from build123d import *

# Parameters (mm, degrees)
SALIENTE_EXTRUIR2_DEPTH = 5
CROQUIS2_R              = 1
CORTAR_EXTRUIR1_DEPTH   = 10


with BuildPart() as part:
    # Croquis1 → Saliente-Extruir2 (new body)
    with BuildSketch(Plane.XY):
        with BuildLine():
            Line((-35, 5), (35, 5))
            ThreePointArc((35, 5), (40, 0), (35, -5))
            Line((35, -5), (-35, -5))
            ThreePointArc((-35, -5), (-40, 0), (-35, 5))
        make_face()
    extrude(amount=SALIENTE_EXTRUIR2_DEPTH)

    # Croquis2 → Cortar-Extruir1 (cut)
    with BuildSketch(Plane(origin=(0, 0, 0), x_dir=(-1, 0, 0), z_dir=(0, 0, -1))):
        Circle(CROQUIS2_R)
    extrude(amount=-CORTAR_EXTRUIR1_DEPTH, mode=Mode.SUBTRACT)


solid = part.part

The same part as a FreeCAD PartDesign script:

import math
import FreeCAD as App
import Part
import Sketcher

V = App.Vector
Q = App.Units.Quantity

doc = App.newDocument("Part")
body = doc.addObject("PartDesign::Body", "Body")

# Sketch on XY plane
sketch1 = body.newObject("Sketcher::SketchObject", "Sketch")
sketch1.AttachmentSupport = (doc.getObject("XY_Plane"), [""])
sketch1.MapMode = "FlatFace"
sketch1.addGeometry([
    Part.LineSegment(V(35, 5, 0), V(-35, 5, 0)),
    Part.ArcOfCircle(Part.Circle(V(-35, 0, 0), V(0, 0, 1), 5), math.radians(90), math.radians(270)),
    Part.LineSegment(V(-35, -5, 0), V(35, -5, 0)),
    Part.ArcOfCircle(Part.Circle(V(35, 0, 0), V(0, 0, 1), 5), math.radians(-90), math.radians(90)),
], False)
sketch1.addConstraint([
    Sketcher.Constraint("Tangent", 0, 2, 1, 1),
    Sketcher.Constraint("Tangent", 1, 2, 2, 1),
    Sketcher.Constraint("Tangent", 2, 2, 3, 1),
    Sketcher.Constraint("Tangent", 3, 2, 0, 1),
    Sketcher.Constraint("Horizontal", 0),
    Sketcher.Constraint("Horizontal", 2),
    Sketcher.Constraint("Symmetric", 1, 3, 3, 3, -1, 1),
    Sketcher.Constraint("Radius", 1, Q("5 mm")),
    Sketcher.Constraint("DistanceX", 0, 2, 0, 1, Q("70 mm")),
])
pad1 = body.newObject("PartDesign::Pad", "Pad")
pad1.Profile = sketch1
pad1.Length = 5

# Sketch on XY plane
sketch2 = body.newObject("Sketcher::SketchObject", "Sketch001")
sketch2.AttachmentSupport = (doc.getObject("XY_Plane"), [""])
sketch2.MapMode = "FlatFace"
sketch2.addGeometry(Part.Circle(V(0, 0, 0), V(0, 0, 1), 1), False)
sketch2.addConstraint([
    Sketcher.Constraint("Coincident", 0, 3, -1, 1),
    Sketcher.Constraint("Diameter", 0, Q("2 mm")),
])
pocket1 = body.newObject("PartDesign::Pocket", "Pocket")
pocket1.Profile = sketch2
pocket1.Length = 10
pocket1.Reversed = True

doc.recompute()
